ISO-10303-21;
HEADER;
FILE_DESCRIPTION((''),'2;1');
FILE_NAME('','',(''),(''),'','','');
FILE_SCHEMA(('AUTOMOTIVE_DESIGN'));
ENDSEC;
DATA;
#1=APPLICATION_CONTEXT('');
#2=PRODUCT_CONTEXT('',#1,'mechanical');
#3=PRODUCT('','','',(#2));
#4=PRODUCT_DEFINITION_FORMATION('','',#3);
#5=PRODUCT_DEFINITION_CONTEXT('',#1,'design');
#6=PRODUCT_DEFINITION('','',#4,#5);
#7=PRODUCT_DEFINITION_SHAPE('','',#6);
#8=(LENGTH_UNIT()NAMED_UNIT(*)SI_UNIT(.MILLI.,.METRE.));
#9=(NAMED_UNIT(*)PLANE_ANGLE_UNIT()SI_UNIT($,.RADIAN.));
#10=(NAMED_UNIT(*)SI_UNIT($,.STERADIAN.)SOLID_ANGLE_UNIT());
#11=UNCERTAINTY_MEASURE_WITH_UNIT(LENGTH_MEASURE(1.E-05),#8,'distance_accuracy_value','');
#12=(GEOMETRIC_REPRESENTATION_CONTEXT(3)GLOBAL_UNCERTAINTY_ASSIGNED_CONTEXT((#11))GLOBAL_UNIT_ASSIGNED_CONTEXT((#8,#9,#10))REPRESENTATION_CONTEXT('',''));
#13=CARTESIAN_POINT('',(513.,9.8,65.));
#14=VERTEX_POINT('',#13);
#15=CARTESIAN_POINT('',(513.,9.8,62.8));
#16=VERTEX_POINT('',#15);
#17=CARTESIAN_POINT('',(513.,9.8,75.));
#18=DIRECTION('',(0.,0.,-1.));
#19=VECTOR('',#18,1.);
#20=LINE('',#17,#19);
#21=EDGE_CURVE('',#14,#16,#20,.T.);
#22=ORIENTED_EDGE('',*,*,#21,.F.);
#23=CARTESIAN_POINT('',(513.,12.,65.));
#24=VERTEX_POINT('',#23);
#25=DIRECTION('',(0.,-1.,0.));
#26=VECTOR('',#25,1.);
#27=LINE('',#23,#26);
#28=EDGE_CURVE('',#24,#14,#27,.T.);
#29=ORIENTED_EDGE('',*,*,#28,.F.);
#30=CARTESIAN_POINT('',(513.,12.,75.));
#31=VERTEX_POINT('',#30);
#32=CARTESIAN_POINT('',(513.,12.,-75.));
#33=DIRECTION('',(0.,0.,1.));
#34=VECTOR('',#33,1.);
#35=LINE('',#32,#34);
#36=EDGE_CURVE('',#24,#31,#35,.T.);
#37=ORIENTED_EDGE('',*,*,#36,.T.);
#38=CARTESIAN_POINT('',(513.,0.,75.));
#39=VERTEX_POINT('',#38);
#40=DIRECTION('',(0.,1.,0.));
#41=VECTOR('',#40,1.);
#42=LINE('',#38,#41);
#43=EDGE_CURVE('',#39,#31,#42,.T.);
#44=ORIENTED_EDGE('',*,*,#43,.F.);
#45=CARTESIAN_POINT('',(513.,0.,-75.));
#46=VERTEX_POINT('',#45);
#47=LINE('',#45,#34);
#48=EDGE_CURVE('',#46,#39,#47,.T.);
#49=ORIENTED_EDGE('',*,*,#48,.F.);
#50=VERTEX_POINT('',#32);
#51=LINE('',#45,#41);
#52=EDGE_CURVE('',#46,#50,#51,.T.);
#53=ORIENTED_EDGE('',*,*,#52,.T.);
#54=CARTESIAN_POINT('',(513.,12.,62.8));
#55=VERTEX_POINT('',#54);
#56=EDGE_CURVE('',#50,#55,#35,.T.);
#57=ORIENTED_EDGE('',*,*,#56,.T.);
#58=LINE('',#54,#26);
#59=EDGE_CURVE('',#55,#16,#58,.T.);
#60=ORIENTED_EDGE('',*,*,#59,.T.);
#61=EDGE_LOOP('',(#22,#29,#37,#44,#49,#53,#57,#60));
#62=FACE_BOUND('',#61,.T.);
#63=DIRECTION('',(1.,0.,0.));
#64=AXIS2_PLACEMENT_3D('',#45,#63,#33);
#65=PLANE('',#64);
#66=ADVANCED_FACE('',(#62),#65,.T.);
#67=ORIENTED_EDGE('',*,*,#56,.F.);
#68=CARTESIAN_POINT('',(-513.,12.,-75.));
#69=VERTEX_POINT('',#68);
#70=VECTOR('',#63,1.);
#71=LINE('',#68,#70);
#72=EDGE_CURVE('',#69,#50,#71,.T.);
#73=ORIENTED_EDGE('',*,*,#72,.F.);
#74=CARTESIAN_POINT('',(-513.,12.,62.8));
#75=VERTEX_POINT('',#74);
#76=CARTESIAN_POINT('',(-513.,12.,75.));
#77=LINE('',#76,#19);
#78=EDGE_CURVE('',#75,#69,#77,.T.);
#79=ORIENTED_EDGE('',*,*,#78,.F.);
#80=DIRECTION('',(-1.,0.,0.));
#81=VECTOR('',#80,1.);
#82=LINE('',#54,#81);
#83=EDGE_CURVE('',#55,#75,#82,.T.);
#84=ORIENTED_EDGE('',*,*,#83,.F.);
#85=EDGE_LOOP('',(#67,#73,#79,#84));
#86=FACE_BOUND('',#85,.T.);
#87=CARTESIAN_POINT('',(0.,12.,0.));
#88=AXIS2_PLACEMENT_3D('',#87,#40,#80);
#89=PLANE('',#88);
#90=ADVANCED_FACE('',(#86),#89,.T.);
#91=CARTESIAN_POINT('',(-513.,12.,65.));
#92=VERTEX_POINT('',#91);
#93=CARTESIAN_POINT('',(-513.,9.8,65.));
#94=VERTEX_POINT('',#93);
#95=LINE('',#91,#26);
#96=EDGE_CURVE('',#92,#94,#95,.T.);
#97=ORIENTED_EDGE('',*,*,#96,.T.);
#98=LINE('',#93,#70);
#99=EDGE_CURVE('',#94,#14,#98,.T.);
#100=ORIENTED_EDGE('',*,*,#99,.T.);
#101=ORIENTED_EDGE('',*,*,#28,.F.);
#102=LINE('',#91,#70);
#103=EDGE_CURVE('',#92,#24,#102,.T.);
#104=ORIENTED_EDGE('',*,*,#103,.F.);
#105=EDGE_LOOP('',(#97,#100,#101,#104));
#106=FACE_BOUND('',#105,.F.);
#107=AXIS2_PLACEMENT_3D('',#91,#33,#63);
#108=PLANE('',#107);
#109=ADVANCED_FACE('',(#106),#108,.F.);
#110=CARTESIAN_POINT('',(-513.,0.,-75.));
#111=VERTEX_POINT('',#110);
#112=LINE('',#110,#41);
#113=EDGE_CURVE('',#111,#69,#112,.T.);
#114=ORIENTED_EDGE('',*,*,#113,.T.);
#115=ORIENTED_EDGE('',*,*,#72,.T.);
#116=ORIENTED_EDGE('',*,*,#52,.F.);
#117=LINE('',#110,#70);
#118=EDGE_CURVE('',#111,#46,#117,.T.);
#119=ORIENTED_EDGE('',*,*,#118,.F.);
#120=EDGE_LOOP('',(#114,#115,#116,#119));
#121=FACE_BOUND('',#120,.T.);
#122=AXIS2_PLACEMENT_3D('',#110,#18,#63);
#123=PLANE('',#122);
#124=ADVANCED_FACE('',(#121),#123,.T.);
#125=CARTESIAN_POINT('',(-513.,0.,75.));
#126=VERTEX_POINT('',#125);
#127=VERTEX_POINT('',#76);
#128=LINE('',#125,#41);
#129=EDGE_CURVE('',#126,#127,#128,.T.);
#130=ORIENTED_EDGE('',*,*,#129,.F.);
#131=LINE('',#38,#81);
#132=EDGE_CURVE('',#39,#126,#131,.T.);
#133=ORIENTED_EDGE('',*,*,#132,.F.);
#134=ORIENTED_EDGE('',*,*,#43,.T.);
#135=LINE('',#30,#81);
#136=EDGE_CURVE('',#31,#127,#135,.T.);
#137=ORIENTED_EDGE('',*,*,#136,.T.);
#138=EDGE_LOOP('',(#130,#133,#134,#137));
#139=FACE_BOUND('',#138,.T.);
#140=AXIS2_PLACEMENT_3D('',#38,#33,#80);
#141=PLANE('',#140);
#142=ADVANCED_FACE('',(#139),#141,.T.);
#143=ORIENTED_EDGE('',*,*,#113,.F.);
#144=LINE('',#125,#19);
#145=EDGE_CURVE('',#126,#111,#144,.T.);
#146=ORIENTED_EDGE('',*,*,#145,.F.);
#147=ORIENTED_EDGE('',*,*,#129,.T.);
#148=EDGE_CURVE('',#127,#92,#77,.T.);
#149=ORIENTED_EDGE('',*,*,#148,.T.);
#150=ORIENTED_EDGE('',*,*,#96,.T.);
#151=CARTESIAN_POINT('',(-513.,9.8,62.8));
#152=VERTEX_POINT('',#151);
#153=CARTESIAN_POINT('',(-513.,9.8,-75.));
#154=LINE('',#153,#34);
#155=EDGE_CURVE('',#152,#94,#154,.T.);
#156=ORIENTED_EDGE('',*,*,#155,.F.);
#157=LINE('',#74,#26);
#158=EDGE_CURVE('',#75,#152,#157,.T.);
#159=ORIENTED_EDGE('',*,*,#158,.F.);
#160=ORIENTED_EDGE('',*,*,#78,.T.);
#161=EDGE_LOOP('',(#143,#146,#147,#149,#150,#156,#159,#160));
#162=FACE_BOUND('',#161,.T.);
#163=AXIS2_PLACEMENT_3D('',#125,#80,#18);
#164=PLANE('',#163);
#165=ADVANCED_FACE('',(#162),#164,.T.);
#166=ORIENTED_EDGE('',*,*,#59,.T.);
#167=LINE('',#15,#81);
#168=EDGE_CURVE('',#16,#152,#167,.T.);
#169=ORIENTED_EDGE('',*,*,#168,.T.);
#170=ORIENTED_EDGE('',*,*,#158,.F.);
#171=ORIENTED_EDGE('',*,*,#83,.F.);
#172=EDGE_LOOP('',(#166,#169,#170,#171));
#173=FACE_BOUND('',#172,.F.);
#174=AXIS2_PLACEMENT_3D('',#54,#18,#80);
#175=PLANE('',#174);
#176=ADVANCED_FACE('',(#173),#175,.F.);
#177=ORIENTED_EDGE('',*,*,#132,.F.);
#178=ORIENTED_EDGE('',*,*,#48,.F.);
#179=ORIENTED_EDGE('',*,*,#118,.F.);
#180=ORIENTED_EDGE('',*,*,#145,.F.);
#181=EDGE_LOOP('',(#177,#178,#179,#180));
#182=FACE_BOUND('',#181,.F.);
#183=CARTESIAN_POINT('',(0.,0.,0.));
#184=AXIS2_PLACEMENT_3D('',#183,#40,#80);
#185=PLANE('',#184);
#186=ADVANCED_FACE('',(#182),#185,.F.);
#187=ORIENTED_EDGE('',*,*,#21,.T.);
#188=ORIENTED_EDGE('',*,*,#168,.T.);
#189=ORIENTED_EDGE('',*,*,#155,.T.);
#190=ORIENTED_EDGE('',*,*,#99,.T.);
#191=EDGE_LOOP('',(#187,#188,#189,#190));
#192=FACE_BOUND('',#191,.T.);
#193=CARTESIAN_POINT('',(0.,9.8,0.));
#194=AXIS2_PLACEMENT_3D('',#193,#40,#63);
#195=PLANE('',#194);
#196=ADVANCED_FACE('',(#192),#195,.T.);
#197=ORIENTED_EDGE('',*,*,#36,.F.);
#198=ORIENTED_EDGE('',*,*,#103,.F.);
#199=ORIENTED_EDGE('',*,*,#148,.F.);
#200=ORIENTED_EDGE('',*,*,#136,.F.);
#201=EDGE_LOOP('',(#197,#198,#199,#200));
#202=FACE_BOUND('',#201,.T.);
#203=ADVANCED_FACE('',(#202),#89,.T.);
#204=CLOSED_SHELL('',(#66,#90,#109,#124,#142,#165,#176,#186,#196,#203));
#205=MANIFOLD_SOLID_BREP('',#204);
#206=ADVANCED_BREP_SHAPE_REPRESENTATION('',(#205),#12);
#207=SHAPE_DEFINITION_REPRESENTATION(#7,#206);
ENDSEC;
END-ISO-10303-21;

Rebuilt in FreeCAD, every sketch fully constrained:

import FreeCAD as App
import Part
import Sketcher

V = App.Vector

doc = App.newDocument("Part")
body = doc.addObject("PartDesign::Body", "Body")

# Sketch on XZ plane
sketch1 = doc.addObject("Sketcher::SketchObject", "Sketch")
body.addObject(sketch1)
sketch1.AttachmentSupport = (doc.XZ_Plane, [""])
sketch1.MapMode = "FlatFace"
sketch1.addGeometry([
    Part.LineSegment(V(-513, 75, 0), V(513, 75, 0)),
    Part.LineSegment(V(513, 75, 0), V(513, -75, 0)),
    Part.LineSegment(V(513, -75, 0), V(-513, -75, 0)),
    Part.LineSegment(V(-513, -75, 0), V(-513, 75, 0)),
], False)
sketch1.addConstraint([
    Sketcher.Constraint("Coincident", 0, 2, 1, 1),
    Sketcher.Constraint("Coincident", 1, 2, 2, 1),
    Sketcher.Constraint("Coincident", 2, 2, 3, 1),
    Sketcher.Constraint("Coincident", 3, 2, 0, 1),
    Sketcher.Constraint("Horizontal", 0),
    Sketcher.Constraint("Vertical", 1),
    Sketcher.Constraint("Horizontal", 2),
    Sketcher.Constraint("Vertical", 3),
    Sketcher.Constraint("Symmetric", 0, 2, 2, 2, -1, 1),
    Sketcher.Constraint("DistanceX", 0, 1, 0, 2, 1026.0),
    Sketcher.Constraint("DistanceY", 1, 2, 1, 1, 150.0),
])
pad1 = doc.addObject("PartDesign::Pad", "Pad")
body.addObject(pad1)
pad1.Profile = sketch1
pad1.Length = 12
pad1.Reversed = True

# Sketch on XZ plane
sketch2 = doc.addObject("Sketcher::SketchObject", "Sketch001")
body.addObject(sketch2)
sketch2.AttachmentSupport = (doc.XZ_Plane, [""])
sketch2.MapMode = "FlatFace"
sketch2.AttachmentOffset = App.Placement(V(0, 0, -12), App.Rotation())
sketch2.addGeometry([
    Part.LineSegment(V(513, 65, 0), V(513, 62.8, 0)),
    Part.LineSegment(V(513, 62.8, 0), V(-513, 62.8, 0)),
    Part.LineSegment(V(-513, 62.8, 0), V(-513, 65, 0)),
    Part.LineSegment(V(-513, 65, 0), V(513, 65, 0)),
], False)
sketch2.addConstraint([
    Sketcher.Constraint("Coincident", 0, 2, 1, 1),
    Sketcher.Constraint("Coincident", 1, 2, 2, 1),
    Sketcher.Constraint("Coincident", 2, 2, 3, 1),
    Sketcher.Constraint("Coincident", 3, 2, 0, 1),
    Sketcher.Constraint("Vertical", 0),
    Sketcher.Constraint("Horizontal", 1),
    Sketcher.Constraint("Vertical", 2),
    Sketcher.Constraint("Horizontal", 3),
    Sketcher.Constraint("DistanceY", 0, 2, 0, 1, 2.2),
    Sketcher.Constraint("DistanceX", 1, 2, 1, 1, 1026.0),
    Sketcher.Constraint("DistanceX", -1, 1, 0, 2, 513.0),
    Sketcher.Constraint("DistanceY", -1, 1, 2, 2, 65.0),
])
pocket1 = doc.addObject("PartDesign::Pocket", "Pocket")
body.addObject(pocket1)
pocket1.Profile = sketch2
pocket1.Length = 2.2
pocket1.Reversed = True

doc.recompute()
